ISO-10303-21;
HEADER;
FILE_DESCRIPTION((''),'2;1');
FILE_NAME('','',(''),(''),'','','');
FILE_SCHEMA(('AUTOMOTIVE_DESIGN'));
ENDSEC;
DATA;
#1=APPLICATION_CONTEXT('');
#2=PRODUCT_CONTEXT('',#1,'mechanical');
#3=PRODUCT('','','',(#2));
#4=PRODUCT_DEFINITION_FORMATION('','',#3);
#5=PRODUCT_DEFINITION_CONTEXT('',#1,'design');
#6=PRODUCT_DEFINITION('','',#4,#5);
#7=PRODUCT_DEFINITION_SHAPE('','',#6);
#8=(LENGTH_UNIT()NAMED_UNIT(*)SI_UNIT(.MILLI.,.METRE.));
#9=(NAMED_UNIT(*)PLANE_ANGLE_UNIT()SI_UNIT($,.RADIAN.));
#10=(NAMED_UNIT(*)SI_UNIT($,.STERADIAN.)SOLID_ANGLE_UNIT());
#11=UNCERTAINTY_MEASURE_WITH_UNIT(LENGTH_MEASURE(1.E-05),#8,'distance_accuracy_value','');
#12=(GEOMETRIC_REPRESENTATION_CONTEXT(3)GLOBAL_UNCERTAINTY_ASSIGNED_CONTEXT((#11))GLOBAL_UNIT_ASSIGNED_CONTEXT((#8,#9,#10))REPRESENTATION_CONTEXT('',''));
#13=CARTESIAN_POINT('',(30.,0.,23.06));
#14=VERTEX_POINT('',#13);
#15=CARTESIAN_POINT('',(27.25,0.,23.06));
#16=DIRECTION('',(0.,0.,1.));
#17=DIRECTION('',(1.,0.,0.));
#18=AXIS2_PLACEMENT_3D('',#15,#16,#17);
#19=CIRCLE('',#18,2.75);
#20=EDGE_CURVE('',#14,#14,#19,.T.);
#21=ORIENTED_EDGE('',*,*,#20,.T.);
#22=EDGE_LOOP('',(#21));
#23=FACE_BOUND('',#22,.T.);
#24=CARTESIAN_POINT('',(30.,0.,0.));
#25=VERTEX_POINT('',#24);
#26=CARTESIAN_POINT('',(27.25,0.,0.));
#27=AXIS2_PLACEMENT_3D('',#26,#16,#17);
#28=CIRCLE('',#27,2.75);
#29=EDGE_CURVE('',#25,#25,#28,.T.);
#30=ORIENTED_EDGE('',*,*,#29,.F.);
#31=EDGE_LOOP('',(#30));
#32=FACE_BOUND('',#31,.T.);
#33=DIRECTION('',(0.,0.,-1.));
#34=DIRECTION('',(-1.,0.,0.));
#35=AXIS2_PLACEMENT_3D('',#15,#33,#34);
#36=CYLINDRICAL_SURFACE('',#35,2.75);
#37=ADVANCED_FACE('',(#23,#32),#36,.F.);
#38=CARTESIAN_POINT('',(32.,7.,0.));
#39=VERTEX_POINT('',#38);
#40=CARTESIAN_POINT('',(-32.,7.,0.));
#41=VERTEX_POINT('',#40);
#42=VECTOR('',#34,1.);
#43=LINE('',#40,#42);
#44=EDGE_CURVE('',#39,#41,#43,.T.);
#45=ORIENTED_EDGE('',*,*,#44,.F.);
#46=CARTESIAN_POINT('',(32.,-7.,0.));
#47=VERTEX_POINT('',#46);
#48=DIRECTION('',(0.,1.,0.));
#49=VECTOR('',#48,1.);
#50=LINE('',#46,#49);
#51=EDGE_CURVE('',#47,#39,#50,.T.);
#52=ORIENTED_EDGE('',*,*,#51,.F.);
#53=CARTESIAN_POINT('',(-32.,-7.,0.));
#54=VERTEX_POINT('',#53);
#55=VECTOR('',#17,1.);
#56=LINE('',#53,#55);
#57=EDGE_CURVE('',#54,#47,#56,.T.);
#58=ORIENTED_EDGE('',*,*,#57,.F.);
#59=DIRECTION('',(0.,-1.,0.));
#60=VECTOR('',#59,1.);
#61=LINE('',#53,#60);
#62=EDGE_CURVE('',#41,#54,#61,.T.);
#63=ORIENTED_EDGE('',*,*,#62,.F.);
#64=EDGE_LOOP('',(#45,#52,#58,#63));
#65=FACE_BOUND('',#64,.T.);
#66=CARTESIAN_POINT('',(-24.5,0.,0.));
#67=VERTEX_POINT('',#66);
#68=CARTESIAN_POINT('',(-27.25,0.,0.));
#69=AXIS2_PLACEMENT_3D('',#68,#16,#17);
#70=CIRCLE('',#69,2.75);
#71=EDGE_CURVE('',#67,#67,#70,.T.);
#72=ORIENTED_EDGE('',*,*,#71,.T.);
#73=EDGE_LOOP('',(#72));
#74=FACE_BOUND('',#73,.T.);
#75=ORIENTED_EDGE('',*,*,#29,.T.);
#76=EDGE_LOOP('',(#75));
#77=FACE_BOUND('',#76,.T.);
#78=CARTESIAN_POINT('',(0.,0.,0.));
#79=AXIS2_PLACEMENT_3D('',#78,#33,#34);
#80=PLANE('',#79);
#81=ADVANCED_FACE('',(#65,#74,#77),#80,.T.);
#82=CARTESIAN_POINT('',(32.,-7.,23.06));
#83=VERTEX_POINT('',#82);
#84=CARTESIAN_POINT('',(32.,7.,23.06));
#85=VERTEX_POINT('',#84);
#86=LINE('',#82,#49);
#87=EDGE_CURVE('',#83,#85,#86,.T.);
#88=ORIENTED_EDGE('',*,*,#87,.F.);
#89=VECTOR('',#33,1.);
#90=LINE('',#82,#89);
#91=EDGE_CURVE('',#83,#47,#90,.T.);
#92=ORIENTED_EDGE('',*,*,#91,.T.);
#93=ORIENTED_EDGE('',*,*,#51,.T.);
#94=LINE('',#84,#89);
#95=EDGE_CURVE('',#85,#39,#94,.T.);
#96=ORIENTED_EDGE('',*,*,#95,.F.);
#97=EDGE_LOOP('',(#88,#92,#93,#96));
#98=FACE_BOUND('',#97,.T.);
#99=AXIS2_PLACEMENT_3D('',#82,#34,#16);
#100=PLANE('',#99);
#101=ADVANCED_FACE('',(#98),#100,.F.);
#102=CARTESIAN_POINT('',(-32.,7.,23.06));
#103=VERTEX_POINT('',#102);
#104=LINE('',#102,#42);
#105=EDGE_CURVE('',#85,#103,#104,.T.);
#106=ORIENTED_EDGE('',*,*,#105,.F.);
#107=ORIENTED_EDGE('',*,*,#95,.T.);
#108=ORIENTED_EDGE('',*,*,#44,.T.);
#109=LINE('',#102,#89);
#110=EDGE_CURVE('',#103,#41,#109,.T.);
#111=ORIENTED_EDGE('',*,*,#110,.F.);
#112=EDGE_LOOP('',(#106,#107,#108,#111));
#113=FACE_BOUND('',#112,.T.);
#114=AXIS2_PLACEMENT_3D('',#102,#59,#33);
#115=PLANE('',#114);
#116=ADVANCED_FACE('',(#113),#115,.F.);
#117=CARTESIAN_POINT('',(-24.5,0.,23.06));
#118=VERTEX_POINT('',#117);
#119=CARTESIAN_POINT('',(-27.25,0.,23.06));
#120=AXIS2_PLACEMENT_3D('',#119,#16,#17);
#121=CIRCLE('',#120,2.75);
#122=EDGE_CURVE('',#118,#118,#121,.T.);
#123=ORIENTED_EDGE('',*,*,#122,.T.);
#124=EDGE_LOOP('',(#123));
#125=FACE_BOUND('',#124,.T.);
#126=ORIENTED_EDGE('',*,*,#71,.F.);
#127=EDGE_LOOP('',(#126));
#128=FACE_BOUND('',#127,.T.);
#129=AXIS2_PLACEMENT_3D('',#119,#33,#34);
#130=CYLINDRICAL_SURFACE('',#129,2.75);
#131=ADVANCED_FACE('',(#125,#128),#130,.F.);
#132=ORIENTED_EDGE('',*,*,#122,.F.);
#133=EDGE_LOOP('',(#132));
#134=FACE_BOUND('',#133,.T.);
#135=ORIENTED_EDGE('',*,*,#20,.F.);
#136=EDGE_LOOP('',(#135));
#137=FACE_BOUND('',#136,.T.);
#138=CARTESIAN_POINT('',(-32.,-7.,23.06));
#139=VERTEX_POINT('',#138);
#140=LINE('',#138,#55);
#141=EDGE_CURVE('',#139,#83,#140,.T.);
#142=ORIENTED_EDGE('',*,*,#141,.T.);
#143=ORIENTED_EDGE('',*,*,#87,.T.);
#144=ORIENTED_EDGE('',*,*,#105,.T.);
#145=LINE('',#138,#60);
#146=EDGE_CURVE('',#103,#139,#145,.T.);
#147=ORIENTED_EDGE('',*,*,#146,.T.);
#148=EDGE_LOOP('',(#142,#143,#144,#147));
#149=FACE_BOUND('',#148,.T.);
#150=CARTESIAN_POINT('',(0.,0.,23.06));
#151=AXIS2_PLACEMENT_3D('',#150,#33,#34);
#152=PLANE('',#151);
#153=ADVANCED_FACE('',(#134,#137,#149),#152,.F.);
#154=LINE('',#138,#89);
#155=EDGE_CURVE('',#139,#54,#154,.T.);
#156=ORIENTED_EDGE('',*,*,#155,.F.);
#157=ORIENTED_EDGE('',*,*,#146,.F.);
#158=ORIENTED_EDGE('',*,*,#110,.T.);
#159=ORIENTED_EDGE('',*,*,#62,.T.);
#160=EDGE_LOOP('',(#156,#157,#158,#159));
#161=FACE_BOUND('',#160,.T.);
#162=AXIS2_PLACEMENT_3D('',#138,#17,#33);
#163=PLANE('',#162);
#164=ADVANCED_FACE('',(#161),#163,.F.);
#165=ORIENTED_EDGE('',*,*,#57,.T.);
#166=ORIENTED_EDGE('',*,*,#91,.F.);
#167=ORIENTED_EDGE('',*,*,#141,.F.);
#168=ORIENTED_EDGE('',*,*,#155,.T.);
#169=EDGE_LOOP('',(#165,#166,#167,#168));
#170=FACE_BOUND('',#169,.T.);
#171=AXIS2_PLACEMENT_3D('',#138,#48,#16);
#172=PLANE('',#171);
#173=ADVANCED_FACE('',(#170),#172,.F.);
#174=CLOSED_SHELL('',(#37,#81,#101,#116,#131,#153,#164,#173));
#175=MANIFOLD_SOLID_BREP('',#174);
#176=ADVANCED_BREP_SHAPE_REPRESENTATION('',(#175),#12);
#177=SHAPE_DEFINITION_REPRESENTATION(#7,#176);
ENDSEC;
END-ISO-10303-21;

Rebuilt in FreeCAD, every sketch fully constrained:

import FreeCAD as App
import Part
import Sketcher
Q = App.Units.Quantity

doc = App.newDocument("Part")
body = doc.addObject("PartDesign::Body", "Body")

sketch1 = doc.addObject("Sketcher::SketchObject", "Sketch")
body.addObject(sketch1)
sketch1.AttachmentSupport = (doc.XY_Plane, [""])
sketch1.MapMode = "FlatFace"
sketch1.addGeometry([
    Part.LineSegment(App.Vector(-32, 7, 0), App.Vector(-32, -7, 0)),
    Part.LineSegment(App.Vector(-32, -7, 0), App.Vector(32, -7, 0)),
    Part.LineSegment(App.Vector(32, -7, 0), App.Vector(32, 7, 0)),
    Part.LineSegment(App.Vector(32, 7, 0), App.Vector(-32, 7, 0)),
    Part.Circle(App.Vector(-27.2, 0, 0), App.Vector(0, 0, 1), 2.8),
    Part.Circle(App.Vector(27.2, 0, 0), App.Vector(0, 0, 1), 2.8),
], False)
sketch1.addConstraint([
    Sketcher.Constraint("Coincident", 0, 2, 1, 1),
    Sketcher.Constraint("Coincident", 1, 2, 2, 1),
    Sketcher.Constraint("Coincident", 2, 2, 3, 1),
    Sketcher.Constraint("Coincident", 3, 2, 0, 1),
    Sketcher.Constraint("Vertical", 0),
    Sketcher.Constraint("Horizontal", 1),
    Sketcher.Constraint("Vertical", 2),
    Sketcher.Constraint("Horizontal", 3),
    Sketcher.Constraint("Equal", 4, 5),
    Sketcher.Constraint("Symmetric", 4, 3, 5, 3, -1, 1),
    Sketcher.Constraint("Symmetric", 0, 2, 2, 2, -1, 1),
    Sketcher.Constraint("PointOnObject", 4, 3, -1),
    Sketcher.Constraint("Diameter", 4, Q("5.5 mm")),
    Sketcher.Constraint("DistanceX", 1, 1, 1, 2, Q("64 mm")),
    Sketcher.Constraint("DistanceY", 0, 2, 0, 1, Q("14 mm")),
    Sketcher.Constraint("DistanceX", 4, 3, 5, 3, Q("54.5 mm")),
])
pad1 = doc.addObject("PartDesign::Pad", "Pad")
body.addObject(pad1)
pad1.Profile = sketch1
pad1.Length = 23.06

doc.recompute()
